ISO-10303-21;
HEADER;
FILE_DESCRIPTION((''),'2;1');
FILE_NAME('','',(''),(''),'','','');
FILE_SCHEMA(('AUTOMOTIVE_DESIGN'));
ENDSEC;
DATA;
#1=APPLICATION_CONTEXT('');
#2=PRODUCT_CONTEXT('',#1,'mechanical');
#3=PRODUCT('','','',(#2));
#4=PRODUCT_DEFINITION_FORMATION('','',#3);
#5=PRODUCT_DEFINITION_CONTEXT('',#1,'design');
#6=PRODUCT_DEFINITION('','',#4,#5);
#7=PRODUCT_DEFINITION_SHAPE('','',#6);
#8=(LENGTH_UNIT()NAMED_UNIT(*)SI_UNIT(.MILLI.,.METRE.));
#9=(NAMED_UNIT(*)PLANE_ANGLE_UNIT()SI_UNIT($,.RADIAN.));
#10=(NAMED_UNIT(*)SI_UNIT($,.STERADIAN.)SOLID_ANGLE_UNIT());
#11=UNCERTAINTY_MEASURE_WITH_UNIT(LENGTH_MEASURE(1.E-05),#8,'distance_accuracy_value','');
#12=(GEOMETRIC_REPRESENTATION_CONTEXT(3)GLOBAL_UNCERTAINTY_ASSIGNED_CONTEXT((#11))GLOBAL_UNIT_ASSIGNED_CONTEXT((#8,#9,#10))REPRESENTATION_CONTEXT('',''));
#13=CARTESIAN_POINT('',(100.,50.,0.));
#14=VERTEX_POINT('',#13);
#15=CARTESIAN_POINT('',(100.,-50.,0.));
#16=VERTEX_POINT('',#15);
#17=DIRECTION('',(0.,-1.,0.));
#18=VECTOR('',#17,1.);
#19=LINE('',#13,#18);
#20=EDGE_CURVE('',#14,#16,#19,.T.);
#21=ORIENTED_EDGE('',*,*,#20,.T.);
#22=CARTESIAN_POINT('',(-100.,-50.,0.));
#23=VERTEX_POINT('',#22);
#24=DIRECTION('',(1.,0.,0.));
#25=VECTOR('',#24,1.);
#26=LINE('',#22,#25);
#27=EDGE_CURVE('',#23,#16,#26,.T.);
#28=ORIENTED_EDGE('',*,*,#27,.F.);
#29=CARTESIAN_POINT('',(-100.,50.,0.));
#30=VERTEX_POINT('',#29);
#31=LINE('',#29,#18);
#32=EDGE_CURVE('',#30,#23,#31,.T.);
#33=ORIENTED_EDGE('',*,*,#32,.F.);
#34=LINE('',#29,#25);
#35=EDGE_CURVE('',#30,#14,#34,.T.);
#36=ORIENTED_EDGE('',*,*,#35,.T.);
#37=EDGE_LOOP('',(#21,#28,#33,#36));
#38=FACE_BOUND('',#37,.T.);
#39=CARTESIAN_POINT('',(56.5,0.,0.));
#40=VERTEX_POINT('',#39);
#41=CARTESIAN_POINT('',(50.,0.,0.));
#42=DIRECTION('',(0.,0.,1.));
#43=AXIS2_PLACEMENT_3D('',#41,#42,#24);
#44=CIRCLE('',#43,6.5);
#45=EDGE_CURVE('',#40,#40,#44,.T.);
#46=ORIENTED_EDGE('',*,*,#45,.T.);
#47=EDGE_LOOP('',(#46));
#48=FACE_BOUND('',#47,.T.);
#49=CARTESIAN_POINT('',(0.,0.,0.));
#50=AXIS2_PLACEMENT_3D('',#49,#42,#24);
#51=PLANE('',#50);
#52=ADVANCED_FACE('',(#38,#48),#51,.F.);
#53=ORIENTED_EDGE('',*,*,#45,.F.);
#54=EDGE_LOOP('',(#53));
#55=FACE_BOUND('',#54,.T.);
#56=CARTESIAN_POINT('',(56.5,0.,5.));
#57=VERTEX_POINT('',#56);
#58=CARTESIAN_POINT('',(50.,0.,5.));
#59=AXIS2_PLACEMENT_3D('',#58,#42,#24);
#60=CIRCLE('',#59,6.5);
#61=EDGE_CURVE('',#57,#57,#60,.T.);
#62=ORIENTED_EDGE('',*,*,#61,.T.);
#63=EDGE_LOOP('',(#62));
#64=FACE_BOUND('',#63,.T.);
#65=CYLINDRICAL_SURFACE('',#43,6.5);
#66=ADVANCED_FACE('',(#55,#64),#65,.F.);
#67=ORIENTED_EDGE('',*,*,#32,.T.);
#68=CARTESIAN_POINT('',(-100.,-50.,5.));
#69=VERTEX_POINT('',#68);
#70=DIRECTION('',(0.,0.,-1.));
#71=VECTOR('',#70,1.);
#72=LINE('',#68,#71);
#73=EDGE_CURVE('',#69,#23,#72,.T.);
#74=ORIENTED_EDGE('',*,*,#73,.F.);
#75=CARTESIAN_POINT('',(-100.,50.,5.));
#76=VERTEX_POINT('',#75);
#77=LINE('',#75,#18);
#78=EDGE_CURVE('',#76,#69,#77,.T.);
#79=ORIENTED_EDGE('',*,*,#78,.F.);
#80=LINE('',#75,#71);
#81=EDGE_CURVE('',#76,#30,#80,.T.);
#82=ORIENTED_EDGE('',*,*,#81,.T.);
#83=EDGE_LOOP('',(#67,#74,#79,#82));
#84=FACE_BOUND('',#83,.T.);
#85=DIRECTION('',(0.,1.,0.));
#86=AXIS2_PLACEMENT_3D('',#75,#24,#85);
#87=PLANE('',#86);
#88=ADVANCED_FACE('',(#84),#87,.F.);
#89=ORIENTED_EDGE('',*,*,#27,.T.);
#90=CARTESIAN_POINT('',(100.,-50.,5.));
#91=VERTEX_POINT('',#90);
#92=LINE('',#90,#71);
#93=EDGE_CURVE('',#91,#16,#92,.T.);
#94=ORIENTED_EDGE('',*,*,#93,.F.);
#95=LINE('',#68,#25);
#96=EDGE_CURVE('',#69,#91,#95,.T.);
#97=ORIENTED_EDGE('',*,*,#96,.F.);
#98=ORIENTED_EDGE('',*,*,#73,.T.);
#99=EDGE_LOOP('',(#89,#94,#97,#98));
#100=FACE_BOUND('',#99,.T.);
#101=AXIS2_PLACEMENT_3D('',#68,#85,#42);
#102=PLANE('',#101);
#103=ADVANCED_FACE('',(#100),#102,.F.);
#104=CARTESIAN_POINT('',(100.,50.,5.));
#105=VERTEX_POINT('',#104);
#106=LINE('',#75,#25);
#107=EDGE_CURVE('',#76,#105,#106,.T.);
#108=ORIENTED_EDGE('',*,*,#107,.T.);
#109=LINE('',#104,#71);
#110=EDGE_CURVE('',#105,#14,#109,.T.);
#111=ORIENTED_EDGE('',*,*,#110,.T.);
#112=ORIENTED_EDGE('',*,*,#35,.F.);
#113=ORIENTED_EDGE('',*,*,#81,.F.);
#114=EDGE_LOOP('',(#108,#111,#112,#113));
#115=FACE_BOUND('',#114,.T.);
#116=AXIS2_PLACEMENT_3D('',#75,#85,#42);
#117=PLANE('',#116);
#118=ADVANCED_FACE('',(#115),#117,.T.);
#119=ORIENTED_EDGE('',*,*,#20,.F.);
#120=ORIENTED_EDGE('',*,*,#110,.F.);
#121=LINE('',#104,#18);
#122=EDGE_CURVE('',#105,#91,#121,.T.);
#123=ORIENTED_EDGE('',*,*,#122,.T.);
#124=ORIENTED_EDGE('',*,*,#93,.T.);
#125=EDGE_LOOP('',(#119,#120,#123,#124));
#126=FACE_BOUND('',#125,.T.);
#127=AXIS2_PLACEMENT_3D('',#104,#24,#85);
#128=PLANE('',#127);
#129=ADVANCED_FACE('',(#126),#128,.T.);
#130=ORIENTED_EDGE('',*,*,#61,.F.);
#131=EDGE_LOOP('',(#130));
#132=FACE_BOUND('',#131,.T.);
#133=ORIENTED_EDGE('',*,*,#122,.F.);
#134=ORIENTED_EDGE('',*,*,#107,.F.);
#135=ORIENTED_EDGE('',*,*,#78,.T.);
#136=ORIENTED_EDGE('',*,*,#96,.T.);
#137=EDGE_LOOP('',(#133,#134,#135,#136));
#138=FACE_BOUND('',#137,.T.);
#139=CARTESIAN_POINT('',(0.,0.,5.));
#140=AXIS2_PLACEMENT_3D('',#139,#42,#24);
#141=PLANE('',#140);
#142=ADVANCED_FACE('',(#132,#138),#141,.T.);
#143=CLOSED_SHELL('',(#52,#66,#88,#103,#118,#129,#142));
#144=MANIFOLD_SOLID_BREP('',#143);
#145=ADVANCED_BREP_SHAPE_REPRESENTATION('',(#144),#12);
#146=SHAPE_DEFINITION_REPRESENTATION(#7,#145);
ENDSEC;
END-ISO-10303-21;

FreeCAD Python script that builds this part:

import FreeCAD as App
import Part
import Sketcher

V = App.Vector


def add_polygon(sketch, points):
    """Adds a closed chain of lines whose ends are joined by coincident constraints."""
    first, n = sketch.GeometryCount, len(points)
    for a, b in zip(points, points[1:] + points[:1]):
        sketch.addGeometry(Part.LineSegment(App.Vector(*a, 0), App.Vector(*b, 0)), False)
    for i in range(n):
        sketch.addConstraint(Sketcher.Constraint("Coincident", first + i, 2, first + (i + 1) % n, 1))

doc = App.newDocument("Part")
params = doc.addObject("Spreadsheet::Sheet", "Params")
for row, (alias, value) in enumerate([
    ("sketch1_width", "200 mm"),
    ("sketch1_height", "100 mm"),
    ("pad1_length", "5 mm"),
    ("sketch2_diameter", "13 mm"),
    ("pocket1_length", "5 mm"),
], start=1):
    params.set(f"A{row}", alias)
    params.set(f"B{row}", "=" + value)
    params.setAlias(f"B{row}", alias)

body = doc.addObject("PartDesign::Body", "Body")

sketch1 = body.newObject("Sketcher::SketchObject", "Sketch")
sketch1.AttachmentSupport = (doc.getObject("XY_Plane"), [""])
sketch1.MapMode = "FlatFace"
add_polygon(sketch1, [(-100, 50), (-100, -50), (100, -50), (100, 50)])
sketch1.addConstraint([
    Sketcher.Constraint("Vertical", 0),
    Sketcher.Constraint("Horizontal", 1),
    Sketcher.Constraint("Vertical", 2),
    Sketcher.Constraint("Horizontal", 3),
    Sketcher.Constraint("Symmetric", 0, 2, 2, 2, -1, 1),
    Sketcher.Constraint("DistanceX", 1, 1, 1, 2, 200.0),
    Sketcher.Constraint("DistanceY", 0, 2, 0, 1, 100.0),
])
sketch1.setExpression("Constraints[9]", "Params.sketch1_width")
sketch1.setExpression("Constraints[10]", "Params.sketch1_height")
pad1 = body.newObject("PartDesign::Pad", "Pad")
pad1.Profile = sketch1
pad1.setExpression("Length", "Params.pad1_length")

sketch2 = body.newObject("Sketcher::SketchObject", "Sketch001")
sketch2.AttachmentSupport = (doc.getObject("XY_Plane"), [""])
sketch2.MapMode = "FlatFace"
sketch2.AttachmentOffset = App.Placement(V(0, 0, 5), App.Rotation())
sketch2.addGeometry(Part.Circle(V(50, 0, 0), V(0, 0, 1), 6), False)
sketch2.addConstraint([
    Sketcher.Constraint("PointOnObject", 0, 3, -1),
    Sketcher.Constraint("Diameter", 0, 13.0),
    Sketcher.Constraint("DistanceX", -1, 1, 0, 3, 50.0),
])
sketch2.setExpression("Constraints[1]", "Params.sketch2_diameter")
pocket1 = body.newObject("PartDesign::Pocket", "Pocket")
pocket1.Profile = sketch2
pocket1.setExpression("Length", "Params.pocket1_length")

doc.recompute()
